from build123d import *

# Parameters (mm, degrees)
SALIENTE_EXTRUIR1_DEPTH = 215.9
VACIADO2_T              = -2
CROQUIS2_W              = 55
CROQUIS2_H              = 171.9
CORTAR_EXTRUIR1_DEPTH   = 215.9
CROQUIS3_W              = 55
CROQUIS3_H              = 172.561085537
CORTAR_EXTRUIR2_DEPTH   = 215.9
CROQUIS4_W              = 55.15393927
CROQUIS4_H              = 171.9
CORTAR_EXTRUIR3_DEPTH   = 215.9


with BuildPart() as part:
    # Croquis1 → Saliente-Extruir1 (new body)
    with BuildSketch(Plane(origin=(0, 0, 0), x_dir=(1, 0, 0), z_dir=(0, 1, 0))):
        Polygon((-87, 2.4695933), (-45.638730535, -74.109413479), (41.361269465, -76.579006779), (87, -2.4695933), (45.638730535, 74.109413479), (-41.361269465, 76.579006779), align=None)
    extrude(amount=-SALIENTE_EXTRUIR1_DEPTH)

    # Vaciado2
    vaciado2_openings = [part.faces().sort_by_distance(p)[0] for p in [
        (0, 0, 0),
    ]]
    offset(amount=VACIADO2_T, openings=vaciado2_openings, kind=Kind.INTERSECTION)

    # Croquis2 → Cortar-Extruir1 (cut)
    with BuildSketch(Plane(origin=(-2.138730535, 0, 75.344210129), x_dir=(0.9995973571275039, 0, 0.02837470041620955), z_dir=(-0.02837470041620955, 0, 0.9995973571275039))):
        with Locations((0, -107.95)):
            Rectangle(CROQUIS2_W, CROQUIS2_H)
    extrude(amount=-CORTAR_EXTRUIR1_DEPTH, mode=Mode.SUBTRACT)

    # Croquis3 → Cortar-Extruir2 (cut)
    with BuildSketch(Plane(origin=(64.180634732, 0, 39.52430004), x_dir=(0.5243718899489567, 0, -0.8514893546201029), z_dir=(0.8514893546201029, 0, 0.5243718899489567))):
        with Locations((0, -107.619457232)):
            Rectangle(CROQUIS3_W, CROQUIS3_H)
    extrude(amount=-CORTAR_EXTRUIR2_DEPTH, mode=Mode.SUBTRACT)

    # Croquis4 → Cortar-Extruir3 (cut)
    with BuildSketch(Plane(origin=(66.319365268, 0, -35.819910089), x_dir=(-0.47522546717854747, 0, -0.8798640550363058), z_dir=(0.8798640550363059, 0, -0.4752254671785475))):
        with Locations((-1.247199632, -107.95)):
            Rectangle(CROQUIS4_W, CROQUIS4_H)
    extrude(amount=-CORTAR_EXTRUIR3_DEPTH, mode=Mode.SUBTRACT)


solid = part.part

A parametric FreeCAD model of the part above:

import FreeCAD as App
import Part
import Sketcher

V = App.Vector


def faces_at(feature, points):
    """Names of the faces that lie closest to the given points."""
    faces = feature.Shape.Faces
    near = lambda p: min(range(len(faces)), key=lambda i: faces[i].distToShape(Part.Vertex(*p))[0])
    return sorted({f"Face{near(p) + 1}" for p in points})


def add_polygon(sketch, points):
    """Adds a closed chain of lines whose ends are joined by coincident constraints."""
    first, n = sketch.GeometryCount, len(points)
    for a, b in zip(points, points[1:] + points[:1]):
        sketch.addGeometry(Part.LineSegment(App.Vector(*a, 0), App.Vector(*b, 0)), False)
    for i in range(n):
        sketch.addConstraint(Sketcher.Constraint("Coincident", first + i, 2, first + (i + 1) % n, 1))

doc = App.newDocument("Part")
body = doc.addObject("PartDesign::Body", "Body")

sketch1 = doc.addObject("Sketcher::SketchObject", "Sketch")
body.addObject(sketch1)
sketch1.AttachmentSupport = (doc.XZ_Plane, [""])
sketch1.MapMode = "FlatFace"
add_polygon(sketch1, [(-87, -2), (-46, 74), (41, 77), (87, 2), (46, -74), (-41, -77)])
sketch1.addConstraint(Sketcher.Constraint("Symmetric", 0, 2, 3, 2, -1, 1))
sketch1.addConstraint(Sketcher.Constraint("Symmetric", 1, 2, 4, 2, -1, 1))
sketch1.addConstraint(Sketcher.Constraint("Symmetric", 2, 2, 5, 2, -1, 1))
sketch1.addConstraint(Sketcher.Constraint("Equal", 0, 1))
sketch1.addConstraint(Sketcher.Constraint("Equal", 1, 2))
sketch1.addConstraint(Sketcher.Constraint("DistanceX", -1, 1, 2, 2, 87.0))
sketch1.addConstraint(Sketcher.Constraint("DistanceX", 0, 2, 1, 2, 87.0))
sketch1.addConstraint(Sketcher.Constraint("DistanceY", 4, 2, 2, 2, 79.0486))
sketch1.addConstraint(Sketcher.Constraint("DistanceX", 0, 2, -1, 1, 45.638731))
pad1 = doc.addObject("PartDesign::Pad", "Pad")
body.addObject(pad1)
pad1.Profile = sketch1
pad1.Length = 215.9
doc.recompute()

thickness = doc.addObject("PartDesign::Thickness", "Thickness")
body.addObject(thickness)
thickness.Base = (pad1, faces_at(pad1, [(0, 0, 0)]))
thickness.Value = 2
thickness.Reversed = True
thickness.Join = "Intersection"

sketch2 = doc.addObject("Sketcher::SketchObject", "Sketch001")
body.addObject(sketch2)
sketch2.Placement = App.Placement(V(-2.138731, 0, 75.34421), App.Rotation(V(0.999597357, 0, 0.0283747), V(0, 1, 0), V(-0.0283747, 0, 0.999597357), "ZXY"))
add_polygon(sketch2, [(-27, -22), (-27, -194), (27, -194), (27, -22)])
sketch2.addConstraint(Sketcher.Constraint("Vertical", 0))
sketch2.addConstraint(Sketcher.Constraint("Horizontal", 1))
sketch2.addConstraint(Sketcher.Constraint("Vertical", 2))
sketch2.addConstraint(Sketcher.Constraint("Horizontal", 3))
sketch2.addConstraint(Sketcher.Constraint("DistanceX", 1, 1, 1, 2, 55.0))
sketch2.addConstraint(Sketcher.Constraint("DistanceY", 0, 2, 0, 1, 171.9))
sketch2.addConstraint(Sketcher.Constraint("DistanceY", 2, 2, -1, 1, 22.0))
sketch2.addConstraint(Sketcher.Constraint("DistanceX", 0, 2, -1, 1, 27.5))
pocket1 = doc.addObject("PartDesign::Pocket", "Pocket")
body.addObject(pocket1)
pocket1.Profile = sketch2
pocket1.Length = 215.9

sketch3 = doc.addObject("Sketcher::SketchObject", "Sketch002")
body.addObject(sketch3)
sketch3.Placement = App.Placement(V(64.180635, 0, 39.5243), App.Rotation(V(0.52437189, 0, -0.851489355), V(0, 1.000000001, 0), V(0.851489355, 0, 0.52437189), "ZXY"))
add_polygon(sketch3, [(-28, -21), (-28, -194), (28, -194), (28, -21)])
sketch3.addConstraint(Sketcher.Constraint("Vertical", 0))
sketch3.addConstraint(Sketcher.Constraint("Horizontal", 1))
sketch3.addConstraint(Sketcher.Constraint("Vertical", 2))
sketch3.addConstraint(Sketcher.Constraint("Horizontal", 3))
sketch3.addConstraint(Sketcher.Constraint("DistanceX", 1, 1, 1, 2, 55.0))
sketch3.addConstraint(Sketcher.Constraint("DistanceX", 0, 2, -1, 1, 27.5))
sketch3.addConstraint(Sketcher.Constraint("DistanceY", 0, 2, -1, 1, 193.9))
sketch3.addConstraint(Sketcher.Constraint("DistanceY", 0, 2, 0, 1, 172.561086))
pocket2 = doc.addObject("PartDesign::Pocket", "Pocket001")
body.addObject(pocket2)
pocket2.Profile = sketch3
pocket2.Length = 215.9

sketch4 = doc.addObject("Sketcher::SketchObject", "Sketch003")
body.addObject(sketch4)
sketch4.Placement = App.Placement(V(66.319365, 0, -35.81991), App.Rotation(V(-0.475225467, 0, -0.879864055), V(0, 1, 0), V(0.879864055, 0, -0.475225467), "ZXY"))
add_polygon(sketch4, [(-29, -22), (-29, -194), (26, -194), (26, -22)])
sketch4.addConstraint(Sketcher.Constraint("Vertical", 0))
sketch4.addConstraint(Sketcher.Constraint("Horizontal", 1))
sketch4.addConstraint(Sketcher.Constraint("Vertical", 2))
sketch4.addConstraint(Sketcher.Constraint("Horizontal", 3))
sketch4.addConstraint(Sketcher.Constraint("DistanceY", 0, 2, 0, 1, 171.9))
sketch4.addConstraint(Sketcher.Constraint("DistanceY", 2, 2, -1, 1, 22.0))
sketch4.addConstraint(Sketcher.Constraint("DistanceX", 1, 1, 1, 2, 55.153939))
sketch4.addConstraint(Sketcher.Constraint("DistanceX", 0, 2, -1, 1, 28.824169))
pocket3 = doc.addObject("PartDesign::Pocket", "Pocket002")
body.addObject(pocket3)
pocket3.Profile = sketch4
pocket3.Length = 215.9

doc.recompute()
